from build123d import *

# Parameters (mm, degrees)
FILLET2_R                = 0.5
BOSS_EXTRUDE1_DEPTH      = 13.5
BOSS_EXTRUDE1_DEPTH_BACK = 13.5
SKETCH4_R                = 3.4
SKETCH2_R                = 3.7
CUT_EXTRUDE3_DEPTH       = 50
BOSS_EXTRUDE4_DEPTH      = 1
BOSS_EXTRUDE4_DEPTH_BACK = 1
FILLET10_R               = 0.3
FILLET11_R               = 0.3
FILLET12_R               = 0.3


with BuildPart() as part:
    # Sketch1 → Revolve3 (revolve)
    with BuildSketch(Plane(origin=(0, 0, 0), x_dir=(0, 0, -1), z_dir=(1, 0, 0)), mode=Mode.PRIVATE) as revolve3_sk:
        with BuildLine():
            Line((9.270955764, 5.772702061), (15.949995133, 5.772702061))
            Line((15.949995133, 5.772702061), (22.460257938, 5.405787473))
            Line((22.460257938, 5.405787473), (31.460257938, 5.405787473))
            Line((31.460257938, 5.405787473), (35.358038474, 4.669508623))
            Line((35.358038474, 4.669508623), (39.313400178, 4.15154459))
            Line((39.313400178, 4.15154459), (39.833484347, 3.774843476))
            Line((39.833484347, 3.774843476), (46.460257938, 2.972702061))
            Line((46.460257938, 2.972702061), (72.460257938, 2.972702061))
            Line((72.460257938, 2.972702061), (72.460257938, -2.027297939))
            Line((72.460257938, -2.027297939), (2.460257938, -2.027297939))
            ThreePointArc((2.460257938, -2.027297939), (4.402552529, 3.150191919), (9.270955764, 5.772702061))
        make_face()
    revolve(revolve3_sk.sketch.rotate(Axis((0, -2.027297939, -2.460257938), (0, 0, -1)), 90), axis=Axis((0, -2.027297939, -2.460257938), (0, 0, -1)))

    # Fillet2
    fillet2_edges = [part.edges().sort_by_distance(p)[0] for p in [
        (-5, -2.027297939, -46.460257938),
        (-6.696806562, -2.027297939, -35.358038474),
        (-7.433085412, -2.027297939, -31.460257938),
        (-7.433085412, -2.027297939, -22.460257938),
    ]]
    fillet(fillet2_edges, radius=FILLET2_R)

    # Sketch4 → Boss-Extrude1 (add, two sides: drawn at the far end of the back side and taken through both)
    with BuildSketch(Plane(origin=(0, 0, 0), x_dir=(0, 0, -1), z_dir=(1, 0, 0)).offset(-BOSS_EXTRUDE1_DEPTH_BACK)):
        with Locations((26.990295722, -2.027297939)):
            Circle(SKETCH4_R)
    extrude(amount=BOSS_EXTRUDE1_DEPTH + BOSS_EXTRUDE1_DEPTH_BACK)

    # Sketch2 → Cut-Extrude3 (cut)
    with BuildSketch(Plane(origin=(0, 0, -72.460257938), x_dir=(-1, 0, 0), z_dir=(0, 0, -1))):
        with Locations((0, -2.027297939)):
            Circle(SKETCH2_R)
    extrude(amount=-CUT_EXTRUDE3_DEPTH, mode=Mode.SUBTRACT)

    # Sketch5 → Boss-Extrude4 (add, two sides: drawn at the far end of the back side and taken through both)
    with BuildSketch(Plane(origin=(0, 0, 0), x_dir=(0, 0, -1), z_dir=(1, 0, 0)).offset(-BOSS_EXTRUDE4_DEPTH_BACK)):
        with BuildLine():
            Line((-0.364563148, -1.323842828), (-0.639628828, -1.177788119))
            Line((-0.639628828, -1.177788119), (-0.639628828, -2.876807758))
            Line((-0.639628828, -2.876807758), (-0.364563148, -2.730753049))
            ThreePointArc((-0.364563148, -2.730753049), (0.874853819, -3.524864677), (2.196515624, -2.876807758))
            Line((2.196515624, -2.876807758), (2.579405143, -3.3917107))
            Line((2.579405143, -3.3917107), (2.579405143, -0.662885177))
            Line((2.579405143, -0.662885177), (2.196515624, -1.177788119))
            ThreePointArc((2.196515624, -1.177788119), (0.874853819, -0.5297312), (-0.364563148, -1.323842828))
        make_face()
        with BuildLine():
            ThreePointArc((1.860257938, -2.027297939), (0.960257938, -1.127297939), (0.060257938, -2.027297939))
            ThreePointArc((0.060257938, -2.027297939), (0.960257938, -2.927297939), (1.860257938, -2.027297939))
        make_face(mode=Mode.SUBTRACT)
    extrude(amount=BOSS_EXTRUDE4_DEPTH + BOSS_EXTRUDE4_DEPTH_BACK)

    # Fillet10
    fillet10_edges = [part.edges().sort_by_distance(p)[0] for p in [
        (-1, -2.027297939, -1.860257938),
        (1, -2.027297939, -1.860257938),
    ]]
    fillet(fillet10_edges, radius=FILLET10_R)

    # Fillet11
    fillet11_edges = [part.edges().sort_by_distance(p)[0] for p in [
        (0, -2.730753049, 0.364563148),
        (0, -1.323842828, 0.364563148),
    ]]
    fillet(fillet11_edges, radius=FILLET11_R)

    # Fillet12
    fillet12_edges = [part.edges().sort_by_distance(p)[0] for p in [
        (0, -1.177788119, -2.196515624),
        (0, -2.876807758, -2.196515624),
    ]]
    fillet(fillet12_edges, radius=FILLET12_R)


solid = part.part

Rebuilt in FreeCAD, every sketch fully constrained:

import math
import FreeCAD as App
import Part
import Sketcher

V = App.Vector


def edges_at(feature, points):
    """Names of the edges that pass closest to the given points."""
    edges = feature.Shape.Edges
    near = lambda p: min(range(len(edges)), key=lambda i: edges[i].distToShape(Part.Vertex(*p))[0])
    return sorted({f"Edge{near(p) + 1}" for p in points})

doc = App.newDocument("Part")
body = doc.addObject("PartDesign::Body", "Body")

# Sketch on YZ plane
sketch1 = doc.addObject("Sketcher::SketchObject", "Sketch")
body.addObject(sketch1)
sketch1.AttachmentSupport = (doc.YZ_Plane, [""])
sketch1.MapMode = "FlatFace"
sketch1.addGeometry([
    Part.LineSegment(V(5.8, -15.9, 0), V(5.8, -9.3, 0)),  # 0
    Part.ArcOfCircle(Part.Circle(V(-2, -10.3, 0), V(0, 0, 1), 7.9), math.radians(8), math.radians(90)),  # 1
    Part.LineSegment(V(-2, -2.5, 0), V(-2, -72.5, 0)),  # 2
    Part.LineSegment(V(-2, -72.5, 0), V(3, -72.5, 0)),  # 3
    Part.LineSegment(V(3, -72.5, 0), V(3, -46.5, 0)),  # 4
    Part.LineSegment(V(3, -46.5, 0), V(3.8, -39.8, 0)),  # 5
    Part.LineSegment(V(3.8, -39.8, 0), V(4.2, -39.3, 0)),  # 6
    Part.LineSegment(V(4.2, -39.3, 0), V(4.7, -35.4, 0)),  # 7
    Part.LineSegment(V(4.7, -35.4, 0), V(5.4, -31.5, 0)),  # 8
    Part.LineSegment(V(5.4, -31.5, 0), V(5.4, -22.5, 0)),  # 9
    Part.LineSegment(V(5.4, -22.5, 0), V(5.8, -15.9, 0)),  # 10
], False)
sketch1.addGeometry(Part.LineSegment(V(-2, -2.5, 0), V(-2, -72.5, 0)), True)  # axis
sketch1.addConstraint([
    Sketcher.Constraint("Coincident", 0, 2, 1, 1),
    Sketcher.Constraint("Coincident", 1, 2, 2, 1),
    Sketcher.Constraint("Coincident", 2, 2, 3, 1),
    Sketcher.Constraint("Coincident", 3, 2, 4, 1),
    Sketcher.Constraint("Coincident", 4, 2, 5, 1),
    Sketcher.Constraint("Coincident", 5, 2, 6, 1),
    Sketcher.Constraint("Coincident", 6, 2, 7, 1),
    Sketcher.Constraint("Coincident", 7, 2, 8, 1),
    Sketcher.Constraint("Coincident", 8, 2, 9, 1),
    Sketcher.Constraint("Coincident", 9, 2, 10, 1),
    Sketcher.Constraint("Coincident", 10, 2, 0, 1),
    Sketcher.Constraint("Vertical", 0),
    Sketcher.Constraint("Vertical", 2),
    Sketcher.Constraint("Horizontal", 3),
    Sketcher.Constraint("Vertical", 4),
    Sketcher.Constraint("Vertical", 9),
    Sketcher.Constraint("Vertical", 11),
    Sketcher.Constraint("Coincident", 11, 1, 1, 2),
    Sketcher.Constraint("Horizontal", 3, 2, 11, 2),
    Sketcher.Constraint("DistanceX", 3, 1, 3, 2, 5.0),
    Sketcher.Constraint("DistanceY", 2, 2, 2, 1, 70.0),
    Sketcher.Constraint("DistanceY", 4, 1, 4, 2, 26.0),
    Sketcher.Constraint("DistanceY", 9, 1, 9, 2, 9.0),
    Sketcher.Constraint("DistanceX", 1, 3, 3, 2, 5.0),
    Sketcher.Constraint("DistanceY", 4, 2, 8, 2, 15.0),
    Sketcher.Constraint("DistanceX", 1, 3, 0, 2, 7.8),
    Sketcher.Constraint("Radius", 1, 7.871852),
    Sketcher.Constraint("DistanceY", 0, 1, 0, 2, 6.679039),
    Sketcher.Constraint("DistanceY", 6, 2, -1, 1, 39.3134),
    Sketcher.Constraint("DistanceX", 5, 2, 6, 2, 0.376701),
    Sketcher.Constraint("Distance", 7, 3.989132),
    Sketcher.Constraint("Distance", 8, 3.966711),
    Sketcher.Constraint("DistanceY", 1, 3, -1, 1, 10.33211),
    Sketcher.Constraint("DistanceX", -1, 1, 7, 2, 4.669509),
    Sketcher.Constraint("DistanceY", 7, 2, -1, 1, 35.358038),
    Sketcher.Constraint("DistanceX", 4, 2, 5, 2, 0.802141),
    Sketcher.Constraint("DistanceY", 5, 2, 0, 2, 30.562529),
])
revolution = doc.addObject("PartDesign::Revolution", "Revolution")
body.addObject(revolution)
revolution.Profile = sketch1
revolution.ReferenceAxis = (sketch1, ["Axis0"])
revolution.Angle = 360
doc.recompute()

fillet = doc.addObject("PartDesign::Fillet", "Fillet")
body.addObject(fillet)
fillet.Base = (revolution, edges_at(revolution, [
    (-5, -2.027, -46.46),
    (-6.697, -2.027, -35.358),
    (-7.433, -2.027, -31.46),
    (-7.433, -2.027, -22.46),
]))
fillet.Radius = 0.5

# Sketch on YZ plane
sketch2 = doc.addObject("Sketcher::SketchObject", "Sketch001")
body.addObject(sketch2)
sketch2.AttachmentSupport = (doc.YZ_Plane, [""])
sketch2.MapMode = "FlatFace"
sketch2.addGeometry(Part.Circle(V(-2, -27, 0), V(0, 0, 1), 3.4), False)
sketch2.addConstraint([
    Sketcher.Constraint("Diameter", 0, 6.8),
    Sketcher.Constraint("DistanceX", 0, 3, -1, 1, 2.027298),
    Sketcher.Constraint("DistanceY", 0, 3, -1, 1, 26.990296),
])
pad1 = doc.addObject("PartDesign::Pad", "Pad")
body.addObject(pad1)
pad1.Profile = sketch2
pad1.Type = "TwoLengths"
pad1.Length = 13.5
pad1.Length2 = 13.5

# Sketch on XY plane
sketch3 = doc.addObject("Sketcher::SketchObject", "Sketch002")
body.addObject(sketch3)
sketch3.AttachmentSupport = (doc.XY_Plane, [""])
sketch3.MapMode = "FlatFace"
sketch3.AttachmentOffset = App.Placement(V(0, 0, -72.460258), App.Rotation())
sketch3.addGeometry(Part.Circle(V(0, -2, 0), V(0, 0, 1), 3.7), False)
sketch3.addConstraint([
    Sketcher.Constraint("PointOnObject", 0, 3, -2),
    Sketcher.Constraint("Diameter", 0, 7.4),
    Sketcher.Constraint("DistanceY", 0, 3, -1, 1, 2.027298),
])
pocket1 = doc.addObject("PartDesign::Pocket", "Pocket")
body.addObject(pocket1)
pocket1.Profile = sketch3
pocket1.Length = 50
pocket1.Reversed = True

# Sketch on YZ plane
sketch4 = doc.addObject("Sketcher::SketchObject", "Sketch003")
body.addObject(sketch4)
sketch4.AttachmentSupport = (doc.YZ_Plane, [""])
sketch4.MapMode = "FlatFace"
sketch4.addGeometry([
    Part.LineSegment(V(-1.32, 0.36, 0), V(-1.18, 0.64, 0)),  # 0
    Part.LineSegment(V(-1.18, 0.64, 0), V(-2.88, 0.64, 0)),  # 1
    Part.LineSegment(V(-2.88, 0.64, 0), V(-2.73, 0.36, 0)),  # 2
    Part.ArcOfCircle(Part.Circle(V(-2.03, -0.96, 0), V(0, 0, 1), 1.5), math.radians(118), math.radians(236)),  # 3
    Part.LineSegment(V(-2.88, -2.2, 0), V(-3.39, -2.58, 0)),  # 4
    Part.LineSegment(V(-3.39, -2.58, 0), V(-0.66, -2.58, 0)),  # 5
    Part.LineSegment(V(-0.66, -2.58, 0), V(-1.18, -2.2, 0)),  # 6
    Part.ArcOfCircle(Part.Circle(V(-2.03, -0.96, 0), V(0, 0, 1), 1.5), math.radians(-56), math.radians(62)),  # 7
    Part.Circle(V(-2.03, -0.96, 0), V(0, 0, 1), 0.9),  # 8
], False)
sketch4.addConstraint([
    Sketcher.Constraint("Coincident", 0, 2, 1, 1),
    Sketcher.Constraint("Coincident", 1, 2, 2, 1),
    Sketcher.Constraint("Coincident", 2, 2, 3, 1),
    Sketcher.Constraint("Coincident", 3, 2, 4, 1),
    Sketcher.Constraint("Coincident", 4, 2, 5, 1),
    Sketcher.Constraint("Coincident", 5, 2, 6, 1),
    Sketcher.Constraint("Coincident", 6, 2, 7, 1),
    Sketcher.Constraint("Coincident", 7, 2, 0, 1),
    Sketcher.Constraint("Horizontal", 1),
    Sketcher.Constraint("Horizontal", 5),
    Sketcher.Constraint("Coincident", 7, 3, 3, 3),
    Sketcher.Constraint("Coincident", 8, 3, 3, 3),
    Sketcher.Constraint("Equal", 3, 7),
    Sketcher.Constraint("Horizontal", 3, 2, 6, 2),
    Sketcher.Constraint("Horizontal", 2, 2, 7, 2),
    Sketcher.Constraint("Vertical", 1, 2, 3, 2),
    Sketcher.Constraint("Vertical", 0, 2, 6, 2),
    Sketcher.Constraint("Equal", 4, 6),
    Sketcher.Constraint("Diameter", 8, 1.8),
    Sketcher.Constraint("Radius", 3, 1.5),
    Sketcher.Constraint("DistanceX", 1, 2, 1, 1, 1.69902),
    Sketcher.Constraint("Distance", 4, 0.641661),
    Sketcher.Constraint("DistanceX", 5, 1, 5, 2, 2.728826),
    Sketcher.Constraint("DistanceX", 0, 2, -1, 1, 1.177788),
    Sketcher.Constraint("DistanceY", -1, 1, 0, 2, 0.639629),
    Sketcher.Constraint("DistanceY", 7, 3, 2, 2, 1.324821),
    Sketcher.Constraint("Distance", 0, 0.311437),
])
pad2 = doc.addObject("PartDesign::Pad", "Pad001")
body.addObject(pad2)
pad2.Profile = sketch4
pad2.Type = "TwoLengths"
pad2.Length = 1
pad2.Length2 = 1
doc.recompute()

fillet2 = doc.addObject("PartDesign::Fillet", "Fillet001")
body.addObject(fillet2)
fillet2.Base = (pad2, edges_at(pad2, [(-1, -2.027, -1.86), (1, -2.027, -1.86)]))
fillet2.Radius = 0.3
doc.recompute()

fillet3 = doc.addObject("PartDesign::Fillet", "Fillet002")
body.addObject(fillet3)
fillet3.Base = (fillet2, edges_at(fillet2, [(0, -2.731, 0.365), (0, -1.324, 0.365)]))
fillet3.Radius = 0.3
doc.recompute()

fillet4 = doc.addObject("PartDesign::Fillet", "Fillet003")
body.addObject(fillet4)
fillet4.Base = (fillet3, edges_at(fillet3, [(0, -1.178, -2.197), (0, -2.877, -2.197)]))
fillet4.Radius = 0.3

doc.recompute()
